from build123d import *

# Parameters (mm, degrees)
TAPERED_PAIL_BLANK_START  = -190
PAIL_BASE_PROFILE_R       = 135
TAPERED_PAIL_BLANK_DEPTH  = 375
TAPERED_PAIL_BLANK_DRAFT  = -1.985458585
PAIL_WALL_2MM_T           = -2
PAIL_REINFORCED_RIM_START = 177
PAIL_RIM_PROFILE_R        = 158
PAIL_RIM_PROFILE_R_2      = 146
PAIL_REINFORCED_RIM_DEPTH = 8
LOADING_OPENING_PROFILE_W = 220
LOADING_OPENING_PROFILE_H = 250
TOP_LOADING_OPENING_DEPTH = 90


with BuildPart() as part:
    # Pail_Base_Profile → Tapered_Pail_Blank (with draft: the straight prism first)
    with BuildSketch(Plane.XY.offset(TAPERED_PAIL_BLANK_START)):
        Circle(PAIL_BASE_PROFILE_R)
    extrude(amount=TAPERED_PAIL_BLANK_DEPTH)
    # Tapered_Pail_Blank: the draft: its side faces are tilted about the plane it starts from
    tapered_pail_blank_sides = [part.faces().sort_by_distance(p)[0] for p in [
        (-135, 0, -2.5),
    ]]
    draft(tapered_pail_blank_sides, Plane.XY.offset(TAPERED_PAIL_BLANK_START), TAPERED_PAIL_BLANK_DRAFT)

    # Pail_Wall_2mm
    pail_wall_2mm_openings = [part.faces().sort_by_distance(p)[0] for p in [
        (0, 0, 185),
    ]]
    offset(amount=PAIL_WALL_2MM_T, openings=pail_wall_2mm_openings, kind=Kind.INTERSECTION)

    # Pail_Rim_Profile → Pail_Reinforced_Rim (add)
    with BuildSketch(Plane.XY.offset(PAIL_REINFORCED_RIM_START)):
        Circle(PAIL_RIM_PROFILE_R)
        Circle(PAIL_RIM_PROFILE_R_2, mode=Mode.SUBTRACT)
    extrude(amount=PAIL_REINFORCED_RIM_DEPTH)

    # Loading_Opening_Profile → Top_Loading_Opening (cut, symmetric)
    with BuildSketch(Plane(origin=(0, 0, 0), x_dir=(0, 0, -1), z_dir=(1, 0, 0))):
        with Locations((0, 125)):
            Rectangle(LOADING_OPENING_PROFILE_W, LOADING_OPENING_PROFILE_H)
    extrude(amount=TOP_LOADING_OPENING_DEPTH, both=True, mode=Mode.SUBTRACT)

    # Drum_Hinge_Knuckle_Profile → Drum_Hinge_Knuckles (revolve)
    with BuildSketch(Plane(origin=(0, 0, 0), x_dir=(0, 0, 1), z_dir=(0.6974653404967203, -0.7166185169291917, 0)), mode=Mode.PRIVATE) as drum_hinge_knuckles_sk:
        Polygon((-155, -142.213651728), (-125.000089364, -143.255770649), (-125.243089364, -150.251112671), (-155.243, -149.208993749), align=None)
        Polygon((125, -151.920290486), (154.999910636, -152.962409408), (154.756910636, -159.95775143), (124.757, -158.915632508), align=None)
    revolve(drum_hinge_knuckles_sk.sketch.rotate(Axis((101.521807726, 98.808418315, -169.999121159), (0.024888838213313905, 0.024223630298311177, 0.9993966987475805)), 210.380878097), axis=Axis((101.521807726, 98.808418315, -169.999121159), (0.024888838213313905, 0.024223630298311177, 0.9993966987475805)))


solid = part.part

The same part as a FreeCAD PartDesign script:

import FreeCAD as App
import Part
import Sketcher
Q = App.Units.Quantity


def faces_at(feature, points):
    """Names of the faces that lie closest to the given points."""
    faces = feature.Shape.Faces
    near = lambda p: min(range(len(faces)), key=lambda i: faces[i].distToShape(Part.Vertex(*p))[0])
    return sorted({f"Face{near(p) + 1}" for p in points})


def add_polygon(sketch, points):
    """Adds a closed chain of lines whose ends are joined by coincident constraints."""
    first, n = sketch.GeometryCount, len(points)
    for a, b in zip(points, points[1:] + points[:1]):
        sketch.addGeometry(Part.LineSegment(App.Vector(*a, 0), App.Vector(*b, 0)), False)
    for i in range(n):
        sketch.addConstraint(Sketcher.Constraint("Coincident", first + i, 2, first + (i + 1) % n, 1))

doc = App.newDocument("Part")
body = doc.addObject("PartDesign::Body", "Body")

# Sketch on XY plane
sketch1 = doc.addObject("Sketcher::SketchObject", "Sketch")
body.addObject(sketch1)
sketch1.AttachmentSupport = (doc.XY_Plane, [""])
sketch1.MapMode = "FlatFace"
sketch1.AttachmentOffset = App.Placement(App.Vector(0, 0, -190), App.Rotation())
sketch1.addGeometry(Part.Circle(App.Vector(0, 0, 0), App.Vector(0, 0, 1), 135), False)
sketch1.addConstraint(Sketcher.Constraint("Coincident", 0, 3, -1, 1))
sketch1.addConstraint(Sketcher.Constraint("Diameter", 0, Q("270 mm")))
pad1 = doc.addObject("PartDesign::Pad", "Pad")
body.addObject(pad1)
pad1.Profile = sketch1
pad1.Length = 375
doc.recompute()

datumplane = doc.addObject("PartDesign::Plane", "DatumPlane")
body.addObject(datumplane)
datumplane.AttachmentSupport = (doc.XY_Plane, [""])
datumplane.MapMode = "FlatFace"
datumplane.AttachmentOffset = App.Placement(App.Vector(0, 0, -190), App.Rotation())
draft = doc.addObject("PartDesign::Draft", "Draft")
body.addObject(draft)
draft.Base = (pad1, faces_at(pad1, [(-135, 0, -2.5)]))
draft.NeutralPlane = (datumplane, [""])
draft.Angle = 1.985459
draft.Reversed = True
doc.recompute()

thickness = doc.addObject("PartDesign::Thickness", "Thickness")
body.addObject(thickness)
thickness.Base = (draft, faces_at(draft, [(0, 0, 185)]))
thickness.Value = 2
thickness.Reversed = True
thickness.Join = "Intersection"

# Sketch on XY plane
sketch2 = doc.addObject("Sketcher::SketchObject", "Sketch001")
body.addObject(sketch2)
sketch2.AttachmentSupport = (doc.XY_Plane, [""])
sketch2.MapMode = "FlatFace"
sketch2.AttachmentOffset = App.Placement(App.Vector(0, 0, 177), App.Rotation())
sketch2.addGeometry(Part.Circle(App.Vector(0, 0, 0), App.Vector(0, 0, 1), 158), False)
sketch2.addGeometry(Part.Circle(App.Vector(0, 0, 0), App.Vector(0, 0, 1), 146), False)
sketch2.addConstraint(Sketcher.Constraint("Coincident", 0, 3, -1, 1))
sketch2.addConstraint(Sketcher.Constraint("Coincident", 1, 3, -1, 1))
sketch2.addConstraint(Sketcher.Constraint("Diameter", 0, Q("316 mm")))
sketch2.addConstraint(Sketcher.Constraint("Diameter", 1, Q("292 mm")))
pad2 = doc.addObject("PartDesign::Pad", "Pad001")
body.addObject(pad2)
pad2.Profile = sketch2
pad2.Length = 8

# Sketch on YZ plane
sketch3 = doc.addObject("Sketcher::SketchObject", "Sketch002")
body.addObject(sketch3)
sketch3.AttachmentSupport = (doc.YZ_Plane, [""])
sketch3.MapMode = "FlatFace"
add_polygon(sketch3, [(250, 110), (0, 110), (0, -110), (250, -110)])  # lines 0-3
sketch3.addConstraint(Sketcher.Constraint("Horizontal", 0))
sketch3.addConstraint(Sketcher.Constraint("Vertical", 1))
sketch3.addConstraint(Sketcher.Constraint("Horizontal", 2))
sketch3.addConstraint(Sketcher.Constraint("Vertical", 3))
sketch3.addConstraint(Sketcher.Constraint("Symmetric", 0, 2, 1, 2, -1, 1))
sketch3.addConstraint(Sketcher.Constraint("DistanceX", 0, 2, 0, 1, Q("250 mm")))
sketch3.addConstraint(Sketcher.Constraint("DistanceY", 1, 2, 1, 1, Q("220 mm")))
pocket1 = doc.addObject("PartDesign::Pocket", "Pocket")
body.addObject(pocket1)
pocket1.Profile = sketch3
pocket1.Length = 180
pocket1.Midplane = True

# Sketch on an angled plane
sketch4 = doc.addObject("Sketcher::SketchObject", "Sketch003")
body.addObject(sketch4)
sketch4.Placement = App.Placement(App.Vector(0, 0, 0), App.Rotation(App.Vector(0, 0, 1), App.Vector(-0.716618517, -0.69746534, 0), App.Vector(0.69746534, -0.716618517, 0), "ZXY"))
add_polygon(sketch4, [(-125.000089, -143.255771), (-155, -142.213652), (-155.243, -149.208994), (-125.243089, -150.251113)])  # lines 0-3
add_polygon(sketch4, [(154.999911, -152.962409), (125, -151.92029), (124.757, -158.915632), (154.756911, -159.957751)])  # lines 4-7
sketch4.addGeometry(Part.LineSegment(App.Vector(-154.999148, -142.189132, 0), App.Vector(155.00002, -152.962195, 0)), True)  # axis
sketch4.addConstraint(Sketcher.Constraint("Perpendicular", 0, 1))
sketch4.addConstraint(Sketcher.Constraint("Perpendicular", 1, 2))
sketch4.addConstraint(Sketcher.Constraint("Perpendicular", 2, 3))
sketch4.addConstraint(Sketcher.Constraint("Perpendicular", 3, 4))
sketch4.addConstraint(Sketcher.Constraint("Perpendicular", 4, 5))
sketch4.addConstraint(Sketcher.Constraint("Perpendicular", 5, 6))
sketch4.addConstraint(Sketcher.Constraint("Perpendicular", 6, 7))
sketch4.addConstraint(Sketcher.Constraint("Equal", 2, 4))
sketch4.addConstraint(Sketcher.Constraint("Equal", 3, 5))
sketch4.addConstraint(Sketcher.Constraint("DistanceX", 0, 2, -1, 1, Q("155 mm")))
sketch4.addConstraint(Sketcher.Constraint("DistanceX", -1, 1, 4, 2, Q("125 mm")))
sketch4.addConstraint(Sketcher.Constraint("DistanceX", 1, 2, -1, 1, Q("155.243 mm")))
sketch4.addConstraint(Sketcher.Constraint("Distance", 1, Q("6.999561 mm")))
sketch4.addConstraint(Sketcher.Constraint("DistanceY", 0, 2, -1, 1, Q("142.213652 mm")))
sketch4.addConstraint(Sketcher.Constraint("DistanceX", 2, 2, -1, 1, Q("125.243089 mm")))
sketch4.addConstraint(Sketcher.Constraint("DistanceY", 4, 2, -1, 1, Q("151.92029 mm")))
sketch4.addConstraint(Sketcher.Constraint("DistanceX", -1, 1, 8, 2, Q("155.00002 mm")))
sketch4.addConstraint(Sketcher.Constraint("DistanceY", 0, 2, 8, 1, Q("0.02452 mm")))
sketch4.addConstraint(Sketcher.Constraint("DistanceX", 8, 1, 3, 2, Q("29.999059 mm")))
sketch4.addConstraint(Sketcher.Constraint("Distance", 8, Q("310.186303 mm")))
revolution = doc.addObject("PartDesign::Revolution", "Revolution")
body.addObject(revolution)
revolution.Profile = sketch4
revolution.ReferenceAxis = (sketch4, ["Axis0"])
revolution.Angle = 360

doc.recompute()
